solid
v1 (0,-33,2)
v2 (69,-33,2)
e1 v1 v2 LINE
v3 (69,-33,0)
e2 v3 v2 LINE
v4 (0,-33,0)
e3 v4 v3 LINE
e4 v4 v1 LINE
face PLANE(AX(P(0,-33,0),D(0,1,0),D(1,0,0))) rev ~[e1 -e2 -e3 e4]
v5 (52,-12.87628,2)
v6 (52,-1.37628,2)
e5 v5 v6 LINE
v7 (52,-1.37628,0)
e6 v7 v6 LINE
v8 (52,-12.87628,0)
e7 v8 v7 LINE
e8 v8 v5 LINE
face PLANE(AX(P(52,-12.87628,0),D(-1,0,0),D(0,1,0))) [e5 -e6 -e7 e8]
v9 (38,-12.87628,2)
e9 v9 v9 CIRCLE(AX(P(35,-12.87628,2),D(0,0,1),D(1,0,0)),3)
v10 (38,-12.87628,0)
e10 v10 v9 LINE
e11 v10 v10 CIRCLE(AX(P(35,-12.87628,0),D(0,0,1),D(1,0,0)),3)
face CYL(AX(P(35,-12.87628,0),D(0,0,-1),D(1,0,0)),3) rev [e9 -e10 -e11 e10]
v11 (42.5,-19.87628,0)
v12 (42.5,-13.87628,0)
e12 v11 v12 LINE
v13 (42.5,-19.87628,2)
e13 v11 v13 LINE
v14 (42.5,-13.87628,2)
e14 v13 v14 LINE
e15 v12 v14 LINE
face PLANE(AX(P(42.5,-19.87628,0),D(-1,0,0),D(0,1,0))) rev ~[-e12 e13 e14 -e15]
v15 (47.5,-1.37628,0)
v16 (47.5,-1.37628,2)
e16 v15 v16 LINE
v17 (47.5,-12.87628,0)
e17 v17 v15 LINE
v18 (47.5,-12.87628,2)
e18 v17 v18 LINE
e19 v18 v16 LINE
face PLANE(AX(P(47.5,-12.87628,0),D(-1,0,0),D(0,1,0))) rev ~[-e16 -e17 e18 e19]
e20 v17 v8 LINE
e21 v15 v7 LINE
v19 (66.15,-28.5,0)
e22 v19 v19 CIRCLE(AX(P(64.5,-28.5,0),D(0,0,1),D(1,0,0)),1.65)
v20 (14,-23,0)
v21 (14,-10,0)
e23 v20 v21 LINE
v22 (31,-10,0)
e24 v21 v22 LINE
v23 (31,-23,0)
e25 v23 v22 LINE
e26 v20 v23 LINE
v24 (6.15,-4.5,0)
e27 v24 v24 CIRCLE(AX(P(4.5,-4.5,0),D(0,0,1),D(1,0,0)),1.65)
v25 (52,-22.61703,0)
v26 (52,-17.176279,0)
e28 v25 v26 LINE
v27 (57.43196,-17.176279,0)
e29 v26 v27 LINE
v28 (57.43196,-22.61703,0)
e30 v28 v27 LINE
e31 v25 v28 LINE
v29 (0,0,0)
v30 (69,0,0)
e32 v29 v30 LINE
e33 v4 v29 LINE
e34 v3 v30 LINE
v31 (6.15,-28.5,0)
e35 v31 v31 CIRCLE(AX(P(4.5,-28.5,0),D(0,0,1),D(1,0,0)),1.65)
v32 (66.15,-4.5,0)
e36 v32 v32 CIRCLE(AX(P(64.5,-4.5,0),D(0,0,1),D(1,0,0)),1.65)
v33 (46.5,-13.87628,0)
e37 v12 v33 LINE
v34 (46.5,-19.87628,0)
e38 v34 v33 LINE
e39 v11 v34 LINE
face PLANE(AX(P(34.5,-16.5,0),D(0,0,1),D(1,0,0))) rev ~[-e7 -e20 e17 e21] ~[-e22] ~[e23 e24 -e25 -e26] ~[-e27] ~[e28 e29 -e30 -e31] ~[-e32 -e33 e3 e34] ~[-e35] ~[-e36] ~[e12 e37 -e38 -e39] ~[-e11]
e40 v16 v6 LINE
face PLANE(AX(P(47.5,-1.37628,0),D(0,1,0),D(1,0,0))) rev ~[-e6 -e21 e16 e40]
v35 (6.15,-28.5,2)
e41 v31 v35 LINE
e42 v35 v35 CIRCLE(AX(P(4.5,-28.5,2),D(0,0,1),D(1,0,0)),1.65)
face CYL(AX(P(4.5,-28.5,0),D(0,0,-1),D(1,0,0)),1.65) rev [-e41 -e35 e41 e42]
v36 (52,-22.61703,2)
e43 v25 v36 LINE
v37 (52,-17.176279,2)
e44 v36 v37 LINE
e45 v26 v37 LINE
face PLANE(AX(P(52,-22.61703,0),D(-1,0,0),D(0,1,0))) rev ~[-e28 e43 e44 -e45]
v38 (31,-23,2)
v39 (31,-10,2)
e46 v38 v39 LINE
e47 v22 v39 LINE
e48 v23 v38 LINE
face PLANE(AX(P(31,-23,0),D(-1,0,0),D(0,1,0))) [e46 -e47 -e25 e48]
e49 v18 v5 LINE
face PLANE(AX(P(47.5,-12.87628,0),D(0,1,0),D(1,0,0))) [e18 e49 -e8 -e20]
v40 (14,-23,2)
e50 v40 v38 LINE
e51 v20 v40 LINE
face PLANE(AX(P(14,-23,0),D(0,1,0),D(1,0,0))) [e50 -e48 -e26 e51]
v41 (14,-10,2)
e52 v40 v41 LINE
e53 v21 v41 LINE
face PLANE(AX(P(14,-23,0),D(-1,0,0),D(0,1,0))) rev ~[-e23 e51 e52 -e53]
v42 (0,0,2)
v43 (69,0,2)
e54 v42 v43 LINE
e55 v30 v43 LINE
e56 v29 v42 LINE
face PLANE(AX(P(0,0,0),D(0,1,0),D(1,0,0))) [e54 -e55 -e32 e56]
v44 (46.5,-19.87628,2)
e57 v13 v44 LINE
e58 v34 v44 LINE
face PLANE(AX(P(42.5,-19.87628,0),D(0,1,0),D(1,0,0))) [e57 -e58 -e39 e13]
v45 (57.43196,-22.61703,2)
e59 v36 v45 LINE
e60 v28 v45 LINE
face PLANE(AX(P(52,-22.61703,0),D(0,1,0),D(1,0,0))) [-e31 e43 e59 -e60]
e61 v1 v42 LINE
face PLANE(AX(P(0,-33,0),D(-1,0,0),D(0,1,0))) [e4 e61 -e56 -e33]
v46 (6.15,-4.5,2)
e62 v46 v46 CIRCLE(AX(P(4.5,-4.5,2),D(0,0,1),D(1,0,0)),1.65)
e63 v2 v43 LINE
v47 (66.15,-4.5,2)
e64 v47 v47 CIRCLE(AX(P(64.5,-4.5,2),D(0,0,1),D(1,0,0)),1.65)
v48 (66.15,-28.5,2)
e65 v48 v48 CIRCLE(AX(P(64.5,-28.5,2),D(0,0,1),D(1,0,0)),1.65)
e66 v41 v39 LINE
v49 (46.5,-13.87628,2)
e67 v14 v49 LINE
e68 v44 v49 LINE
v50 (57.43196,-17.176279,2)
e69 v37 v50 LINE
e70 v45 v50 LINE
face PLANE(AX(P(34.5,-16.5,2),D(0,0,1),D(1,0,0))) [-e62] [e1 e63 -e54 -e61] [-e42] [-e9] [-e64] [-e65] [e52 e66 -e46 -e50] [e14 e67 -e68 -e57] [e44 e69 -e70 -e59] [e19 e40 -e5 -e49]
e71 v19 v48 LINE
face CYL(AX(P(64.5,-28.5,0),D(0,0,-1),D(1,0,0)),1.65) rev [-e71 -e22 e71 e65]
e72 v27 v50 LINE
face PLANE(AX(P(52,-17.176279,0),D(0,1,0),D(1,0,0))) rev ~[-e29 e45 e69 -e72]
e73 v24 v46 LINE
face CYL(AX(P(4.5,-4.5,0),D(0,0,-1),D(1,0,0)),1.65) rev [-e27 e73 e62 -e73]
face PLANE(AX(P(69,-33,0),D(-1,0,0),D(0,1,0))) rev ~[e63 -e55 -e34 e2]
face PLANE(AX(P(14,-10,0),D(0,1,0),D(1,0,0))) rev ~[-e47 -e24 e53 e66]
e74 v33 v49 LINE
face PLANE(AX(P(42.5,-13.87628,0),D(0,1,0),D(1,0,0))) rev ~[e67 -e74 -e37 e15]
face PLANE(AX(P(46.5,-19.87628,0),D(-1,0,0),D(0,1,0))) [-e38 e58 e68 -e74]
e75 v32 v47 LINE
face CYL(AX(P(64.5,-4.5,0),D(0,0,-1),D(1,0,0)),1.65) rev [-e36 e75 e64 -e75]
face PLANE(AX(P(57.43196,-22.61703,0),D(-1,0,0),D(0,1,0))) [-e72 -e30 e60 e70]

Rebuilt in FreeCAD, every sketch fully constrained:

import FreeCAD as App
import Part
import Sketcher

V = App.Vector
Q = App.Units.Quantity


def add_polygon(sketch, points):
    """Adds a closed chain of lines whose ends are joined by coincident constraints."""
    first, n = sketch.GeometryCount, len(points)
    for a, b in zip(points, points[1:] + points[:1]):
        sketch.addGeometry(Part.LineSegment(App.Vector(*a, 0), App.Vector(*b, 0)), False)
    for i in range(n):
        sketch.addConstraint(Sketcher.Constraint("Coincident", first + i, 2, first + (i + 1) % n, 1))

doc = App.newDocument("Part")
body = doc.addObject("PartDesign::Body", "Body")

# Sketch on XY plane
sketch1 = doc.addObject("Sketcher::SketchObject", "Sketch")
body.addObject(sketch1)
sketch1.AttachmentSupport = (doc.XY_Plane, [""])
sketch1.MapMode = "FlatFace"
add_polygon(sketch1, [(0, 0), (0, -33), (69, -33), (69, 0)])  # lines 0-3
sketch1.addGeometry(Part.Circle(V(4.5, -28.5, 0), V(0, 0, 1), 1.6), False)  # 4
add_polygon(sketch1, [(31, -23), (14, -23), (14, -10), (31, -10)])  # lines 5-8
sketch1.addGeometry(Part.Circle(V(64.5, -28.5, 0), V(0, 0, 1), 1.6), False)  # 9
add_polygon(sketch1, [(46.5, -19.9), (42.5, -19.9), (42.5, -13.9), (46.5, -13.9)])  # lines 10-13
add_polygon(sketch1, [(57.4, -22.6), (52, -22.6), (52, -17.2), (57.4, -17.2)])  # lines 14-17
sketch1.addGeometry(Part.Circle(V(4.5, -4.5, 0), V(0, 0, 1), 1.6), False)  # 18
sketch1.addGeometry(Part.Circle(V(35, -12.9, 0), V(0, 0, 1), 3), False)  # 19
add_polygon(sketch1, [(52, -12.9), (47.5, -12.9), (47.5, -1.4), (52, -1.4)])  # lines 20-23
sketch1.addGeometry(Part.Circle(V(64.5, -4.5, 0), V(0, 0, 1), 1.6), False)  # 24
sketch1.addConstraint(Sketcher.Constraint("Vertical", 0))
sketch1.addConstraint(Sketcher.Constraint("Horizontal", 1))
sketch1.addConstraint(Sketcher.Constraint("Vertical", 2))
sketch1.addConstraint(Sketcher.Constraint("Horizontal", 3))
sketch1.addConstraint(Sketcher.Constraint("Horizontal", 5))
sketch1.addConstraint(Sketcher.Constraint("Vertical", 6))
sketch1.addConstraint(Sketcher.Constraint("Horizontal", 7))
sketch1.addConstraint(Sketcher.Constraint("Vertical", 8))
sketch1.addConstraint(Sketcher.Constraint("Horizontal", 10))
sketch1.addConstraint(Sketcher.Constraint("Vertical", 11))
sketch1.addConstraint(Sketcher.Constraint("Horizontal", 12))
sketch1.addConstraint(Sketcher.Constraint("Vertical", 13))
sketch1.addConstraint(Sketcher.Constraint("Horizontal", 14))
sketch1.addConstraint(Sketcher.Constraint("Vertical", 15))
sketch1.addConstraint(Sketcher.Constraint("Horizontal", 16))
sketch1.addConstraint(Sketcher.Constraint("Vertical", 17))
sketch1.addConstraint(Sketcher.Constraint("Horizontal", 20))
sketch1.addConstraint(Sketcher.Constraint("Vertical", 21))
sketch1.addConstraint(Sketcher.Constraint("Horizontal", 22))
sketch1.addConstraint(Sketcher.Constraint("Vertical", 23))
sketch1.addConstraint(Sketcher.Constraint("Coincident", 3, 2, -1, 1))
sketch1.addConstraint(Sketcher.Constraint("Equal", 4, 9))
sketch1.addConstraint(Sketcher.Constraint("Equal", 9, 18))
sketch1.addConstraint(Sketcher.Constraint("Equal", 18, 24))
sketch1.addConstraint(Sketcher.Constraint("Horizontal", 4, 3, 9, 3))
sketch1.addConstraint(Sketcher.Constraint("Horizontal", 18, 3, 24, 3))
sketch1.addConstraint(Sketcher.Constraint("Horizontal", 19, 3, 20, 2))
sketch1.addConstraint(Sketcher.Constraint("Vertical", 4, 3, 18, 3))
sketch1.addConstraint(Sketcher.Constraint("Vertical", 9, 3, 24, 3))
sketch1.addConstraint(Sketcher.Constraint("Vertical", 15, 2, 22, 2))
sketch1.addConstraint(Sketcher.Constraint("Diameter", 19, Q("6 mm")))
sketch1.addConstraint(Sketcher.Constraint("Diameter", 4, Q("3.3 mm")))
sketch1.addConstraint(Sketcher.Constraint("DistanceX", 1, 1, 1, 2, Q("69 mm")))
sketch1.addConstraint(Sketcher.Constraint("DistanceX", 5, 2, 5, 1, Q("17 mm")))
sketch1.addConstraint(Sketcher.Constraint("DistanceX", 10, 2, 10, 1, Q("4 mm")))
sketch1.addConstraint(Sketcher.Constraint("DistanceY", 0, 2, 0, 1, Q("33 mm")))
sketch1.addConstraint(Sketcher.Constraint("DistanceY", 6, 1, 6, 2, Q("13 mm")))
sketch1.addConstraint(Sketcher.Constraint("DistanceY", 11, 1, 11, 2, Q("6 mm")))
sketch1.addConstraint(Sketcher.Constraint("DistanceX", 20, 2, 20, 1, Q("4.5 mm")))
sketch1.addConstraint(Sketcher.Constraint("DistanceY", 21, 1, 21, 2, Q("11.5 mm")))
sketch1.addConstraint(Sketcher.Constraint("DistanceX", -1, 1, 19, 3, Q("35 mm")))
sketch1.addConstraint(Sketcher.Constraint("DistanceX", -1, 1, 5, 2, Q("14 mm")))
sketch1.addConstraint(Sketcher.Constraint("DistanceY", 5, 2, -1, 1, Q("23 mm")))
sketch1.addConstraint(Sketcher.Constraint("DistanceX", -1, 1, 14, 2, Q("52 mm")))
sketch1.addConstraint(Sketcher.Constraint("DistanceX", 4, 3, 9, 3, Q("60 mm")))
sketch1.addConstraint(Sketcher.Constraint("DistanceY", 4, 3, 18, 3, Q("24 mm")))
sketch1.addConstraint(Sketcher.Constraint("DistanceY", 10, 2, 19, 3, Q("7 mm")))
sketch1.addConstraint(Sketcher.Constraint("DistanceX", 10, 2, 9, 3, Q("22 mm")))
sketch1.addConstraint(Sketcher.Constraint("DistanceX", 12, 2, 20, 2, Q("1 mm")))
sketch1.addConstraint(Sketcher.Constraint("DistanceY", 4, 3, -1, 1, Q("28.5 mm")))
sketch1.addConstraint(Sketcher.Constraint("DistanceY", 13, 2, 15, 2, Q("2.700001 mm")))
sketch1.addConstraint(Sketcher.Constraint("DistanceX", 14, 2, 14, 1, Q("5.43196 mm")))
sketch1.addConstraint(Sketcher.Constraint("DistanceY", 15, 1, 15, 2, Q("5.440751 mm")))
sketch1.addConstraint(Sketcher.Constraint("DistanceY", 19, 3, -1, 1, Q("12.87628 mm")))
pad1 = doc.addObject("PartDesign::Pad", "Pad")
body.addObject(pad1)
pad1.Profile = sketch1
pad1.Length = 2

doc.recompute()
